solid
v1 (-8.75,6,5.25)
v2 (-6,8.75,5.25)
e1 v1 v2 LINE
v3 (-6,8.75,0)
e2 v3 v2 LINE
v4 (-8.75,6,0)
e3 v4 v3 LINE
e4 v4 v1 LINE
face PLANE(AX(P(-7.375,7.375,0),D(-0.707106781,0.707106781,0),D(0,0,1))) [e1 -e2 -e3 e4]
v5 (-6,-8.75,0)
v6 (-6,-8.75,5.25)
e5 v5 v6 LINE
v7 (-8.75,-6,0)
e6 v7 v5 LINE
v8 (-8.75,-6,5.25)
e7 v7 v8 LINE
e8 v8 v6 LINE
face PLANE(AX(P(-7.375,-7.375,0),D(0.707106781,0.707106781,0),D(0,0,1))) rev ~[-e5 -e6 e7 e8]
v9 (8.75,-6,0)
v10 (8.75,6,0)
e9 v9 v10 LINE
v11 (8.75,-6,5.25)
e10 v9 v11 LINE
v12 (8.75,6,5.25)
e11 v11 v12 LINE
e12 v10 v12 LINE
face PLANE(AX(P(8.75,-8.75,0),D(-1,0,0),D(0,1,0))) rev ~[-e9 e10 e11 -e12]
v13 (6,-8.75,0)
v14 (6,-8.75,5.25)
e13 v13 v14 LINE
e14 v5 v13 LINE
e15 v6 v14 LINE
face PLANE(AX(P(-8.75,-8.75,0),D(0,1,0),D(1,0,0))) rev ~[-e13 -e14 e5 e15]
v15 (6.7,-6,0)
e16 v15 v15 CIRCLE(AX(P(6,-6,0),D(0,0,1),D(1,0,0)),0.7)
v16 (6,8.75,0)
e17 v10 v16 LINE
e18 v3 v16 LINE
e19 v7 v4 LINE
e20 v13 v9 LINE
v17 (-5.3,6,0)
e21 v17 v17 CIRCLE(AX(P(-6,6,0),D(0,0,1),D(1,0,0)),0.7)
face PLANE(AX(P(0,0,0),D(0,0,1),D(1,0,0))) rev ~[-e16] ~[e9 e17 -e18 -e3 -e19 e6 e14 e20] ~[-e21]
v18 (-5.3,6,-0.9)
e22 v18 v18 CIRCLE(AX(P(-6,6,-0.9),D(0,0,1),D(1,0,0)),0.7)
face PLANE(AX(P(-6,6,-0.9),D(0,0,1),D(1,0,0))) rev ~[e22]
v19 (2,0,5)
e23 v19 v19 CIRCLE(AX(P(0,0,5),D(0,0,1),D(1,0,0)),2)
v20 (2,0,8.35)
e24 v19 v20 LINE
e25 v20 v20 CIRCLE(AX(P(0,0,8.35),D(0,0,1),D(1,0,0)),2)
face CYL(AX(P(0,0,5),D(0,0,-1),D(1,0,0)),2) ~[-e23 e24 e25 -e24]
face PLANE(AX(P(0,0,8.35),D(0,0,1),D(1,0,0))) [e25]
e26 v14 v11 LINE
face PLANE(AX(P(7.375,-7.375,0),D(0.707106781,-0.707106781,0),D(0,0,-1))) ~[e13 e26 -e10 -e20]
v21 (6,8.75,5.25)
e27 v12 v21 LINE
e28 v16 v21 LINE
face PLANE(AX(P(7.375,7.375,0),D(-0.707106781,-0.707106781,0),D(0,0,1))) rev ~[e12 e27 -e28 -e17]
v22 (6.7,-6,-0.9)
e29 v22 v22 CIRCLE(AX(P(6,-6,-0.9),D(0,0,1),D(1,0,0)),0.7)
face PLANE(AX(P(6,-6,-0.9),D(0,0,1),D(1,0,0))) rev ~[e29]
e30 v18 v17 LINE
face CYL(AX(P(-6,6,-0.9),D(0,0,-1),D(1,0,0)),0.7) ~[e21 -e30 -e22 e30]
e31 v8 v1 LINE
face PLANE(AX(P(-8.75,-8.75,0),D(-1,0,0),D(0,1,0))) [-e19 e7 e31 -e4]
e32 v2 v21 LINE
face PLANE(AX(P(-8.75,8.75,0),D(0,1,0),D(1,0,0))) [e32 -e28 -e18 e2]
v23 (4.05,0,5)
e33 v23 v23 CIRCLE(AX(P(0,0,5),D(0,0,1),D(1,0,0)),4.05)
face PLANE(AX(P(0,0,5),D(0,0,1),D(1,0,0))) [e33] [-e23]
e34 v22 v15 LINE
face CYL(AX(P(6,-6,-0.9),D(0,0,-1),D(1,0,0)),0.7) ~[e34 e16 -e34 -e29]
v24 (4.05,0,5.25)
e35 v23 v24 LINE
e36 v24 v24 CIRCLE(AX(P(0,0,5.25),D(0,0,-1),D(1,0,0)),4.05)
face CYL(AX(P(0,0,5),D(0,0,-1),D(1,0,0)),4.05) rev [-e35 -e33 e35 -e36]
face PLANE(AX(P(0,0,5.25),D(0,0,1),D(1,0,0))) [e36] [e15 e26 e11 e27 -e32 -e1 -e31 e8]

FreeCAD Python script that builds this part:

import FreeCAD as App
import Part
import Sketcher
from FreeCAD import Vector
Q = App.Units.Quantity


def edges_at(feature, points):
    """Names of the edges that pass closest to the given points."""
    edges = feature.Shape.Edges
    near = lambda p: min(range(len(edges)), key=lambda i: edges[i].distToShape(Part.Vertex(*p))[0])
    return sorted({f"Edge{near(p) + 1}" for p in points})


def add_polygon(sketch, points):
    """Adds a closed chain of lines whose ends are joined by coincident constraints."""
    first, n = sketch.GeometryCount, len(points)
    for a, b in zip(points, points[1:] + points[:1]):
        sketch.addGeometry(Part.LineSegment(App.Vector(*a, 0), App.Vector(*b, 0)), False)
    for i in range(n):
        sketch.addConstraint(Sketcher.Constraint("Coincident", first + i, 2, first + (i + 1) % n, 1))

doc = App.newDocument("Part")
body = doc.addObject("PartDesign::Body", "Body")

# Sketch on XY plane
sketch1 = body.newObject("Sketcher::SketchObject", "Sketch")
sketch1.AttachmentSupport = (doc.getObject("XY_Plane"), [""])
sketch1.MapMode = "FlatFace"
sketch1.AttachmentOffset = App.Placement(Vector(0, 0, -0.9), App.Rotation())
sketch1.addGeometry(Part.Circle(Vector(6, -6, 0), Vector(0, 0, 1), 0.7), False)
sketch1.addConstraint([
    Sketcher.Constraint("Diameter", 0, Q("1.4 mm")),
    Sketcher.Constraint("DistanceX", -1, 1, 0, 3, Q("6 mm")),
    Sketcher.Constraint("DistanceY", 0, 3, -1, 1, Q("6 mm")),
])
pad1 = body.newObject("PartDesign::Pad", "Pad")
pad1.Profile = sketch1
pad1.Length = 0.9
body2 = doc.addObject("PartDesign::Body", "Body001")

# Sketch on XY plane
sketch2 = body2.newObject("Sketcher::SketchObject", "Sketch001")
sketch2.AttachmentSupport = (doc.getObject("XY_Plane001"), [""])
sketch2.MapMode = "FlatFace"
sketch2.AttachmentOffset = App.Placement(Vector(0, 0, -0.9), App.Rotation())
sketch2.addGeometry(Part.Circle(Vector(-6, 6, 0), Vector(0, 0, 1), 0.7), False)
sketch2.addConstraint([
    Sketcher.Constraint("Diameter", 0, Q("1.4 mm")),
    Sketcher.Constraint("DistanceX", 0, 3, -1, 1, Q("6 mm")),
    Sketcher.Constraint("DistanceY", -1, 1, 0, 3, Q("6 mm")),
])
pad2 = body2.newObject("PartDesign::Pad", "Pad001")
pad2.Profile = sketch2
pad2.Length = 0.9
body3 = doc.addObject("PartDesign::Body", "Body002")

# Sketch on XY plane
sketch3 = body3.newObject("Sketcher::SketchObject", "Sketch002")
sketch3.AttachmentSupport = (doc.getObject("XY_Plane002"), [""])
sketch3.MapMode = "FlatFace"
sketch3.AttachmentOffset = App.Placement(Vector(0, 0, 5), App.Rotation())
sketch3.addGeometry(Part.Circle(Vector(0, 0, 0), Vector(0, 0, 1), 2), False)
sketch3.addConstraint([
    Sketcher.Constraint("Coincident", 0, 3, -1, 1),
    Sketcher.Constraint("Diameter", 0, Q("4 mm")),
])
pad3 = body3.newObject("PartDesign::Pad", "Pad002")
pad3.Profile = sketch3
pad3.Length = 3.35
body4 = doc.addObject("PartDesign::Body", "Body003")

# Sketch on XY plane
sketch4 = body4.newObject("Sketcher::SketchObject", "Sketch003")
sketch4.AttachmentSupport = (doc.getObject("XY_Plane003"), [""])
sketch4.MapMode = "FlatFace"
sketch4.AttachmentOffset = App.Placement(Vector(0, 0, 5), App.Rotation())
sketch4.addGeometry(Part.Circle(Vector(0, 0, 0), Vector(0, 0, 1), 4.05), False)
sketch4.addConstraint([
    Sketcher.Constraint("Coincident", 0, 3, -1, 1),
    Sketcher.Constraint("Diameter", 0, Q("8.1 mm")),
])
pad4 = body4.newObject("PartDesign::Pad", "Pad003")
pad4.Profile = sketch4
pad4.Length = 2
body5 = doc.addObject("PartDesign::Body", "Body004")

# Sketch on XY plane
sketch5 = body5.newObject("Sketcher::SketchObject", "Sketch004")
sketch5.AttachmentSupport = (doc.getObject("XY_Plane004"), [""])
sketch5.MapMode = "FlatFace"
add_polygon(sketch5, [(-8.75, 8.75), (-8.75, -8.75), (8.75, -8.75), (8.75, 8.75)])  # lines 0-3
sketch5.addConstraint([
    Sketcher.Constraint("Vertical", 0),
    Sketcher.Constraint("Horizontal", 1),
    Sketcher.Constraint("Vertical", 2),
    Sketcher.Constraint("Horizontal", 3),
    Sketcher.Constraint("Symmetric", 0, 2, 2, 2, -1, 1),
    Sketcher.Constraint("Equal", 3, 0),
    Sketcher.Constraint("DistanceX", 1, 1, 1, 2, Q("17.5 mm")),
])
pad5 = body5.newObject("PartDesign::Pad", "Pad004")
pad5.Profile = sketch5
pad5.Length = 5.25
doc.recompute()

chamfer = body5.newObject("PartDesign::Chamfer", "Chamfer")
chamfer.Base = (pad5, edges_at(pad5, [
    (-8.75, -8.75, 2.625),
    (-8.75, 8.75, 2.625),
    (8.75, -8.75, 2.625),
    (8.75, 8.75, 2.625),
]))
chamfer.Size = 2.75
doc.recompute()

boolean = body5.newObject("PartDesign::Boolean", "Boolean")
boolean.Type = "Cut"
boolean.addObjects([body4])
doc.recompute()

boolean2 = body5.newObject("PartDesign::Boolean", "Boolean001")
boolean2.Type = "Fuse"
boolean2.addObjects([body])
doc.recompute()

boolean3 = body5.newObject("PartDesign::Boolean", "Boolean002")
boolean3.Type = "Fuse"
boolean3.addObjects([body2])
doc.recompute()

boolean4 = body5.newObject("PartDesign::Boolean", "Boolean003")
boolean4.Type = "Fuse"
boolean4.addObjects([body3])

doc.recompute()
